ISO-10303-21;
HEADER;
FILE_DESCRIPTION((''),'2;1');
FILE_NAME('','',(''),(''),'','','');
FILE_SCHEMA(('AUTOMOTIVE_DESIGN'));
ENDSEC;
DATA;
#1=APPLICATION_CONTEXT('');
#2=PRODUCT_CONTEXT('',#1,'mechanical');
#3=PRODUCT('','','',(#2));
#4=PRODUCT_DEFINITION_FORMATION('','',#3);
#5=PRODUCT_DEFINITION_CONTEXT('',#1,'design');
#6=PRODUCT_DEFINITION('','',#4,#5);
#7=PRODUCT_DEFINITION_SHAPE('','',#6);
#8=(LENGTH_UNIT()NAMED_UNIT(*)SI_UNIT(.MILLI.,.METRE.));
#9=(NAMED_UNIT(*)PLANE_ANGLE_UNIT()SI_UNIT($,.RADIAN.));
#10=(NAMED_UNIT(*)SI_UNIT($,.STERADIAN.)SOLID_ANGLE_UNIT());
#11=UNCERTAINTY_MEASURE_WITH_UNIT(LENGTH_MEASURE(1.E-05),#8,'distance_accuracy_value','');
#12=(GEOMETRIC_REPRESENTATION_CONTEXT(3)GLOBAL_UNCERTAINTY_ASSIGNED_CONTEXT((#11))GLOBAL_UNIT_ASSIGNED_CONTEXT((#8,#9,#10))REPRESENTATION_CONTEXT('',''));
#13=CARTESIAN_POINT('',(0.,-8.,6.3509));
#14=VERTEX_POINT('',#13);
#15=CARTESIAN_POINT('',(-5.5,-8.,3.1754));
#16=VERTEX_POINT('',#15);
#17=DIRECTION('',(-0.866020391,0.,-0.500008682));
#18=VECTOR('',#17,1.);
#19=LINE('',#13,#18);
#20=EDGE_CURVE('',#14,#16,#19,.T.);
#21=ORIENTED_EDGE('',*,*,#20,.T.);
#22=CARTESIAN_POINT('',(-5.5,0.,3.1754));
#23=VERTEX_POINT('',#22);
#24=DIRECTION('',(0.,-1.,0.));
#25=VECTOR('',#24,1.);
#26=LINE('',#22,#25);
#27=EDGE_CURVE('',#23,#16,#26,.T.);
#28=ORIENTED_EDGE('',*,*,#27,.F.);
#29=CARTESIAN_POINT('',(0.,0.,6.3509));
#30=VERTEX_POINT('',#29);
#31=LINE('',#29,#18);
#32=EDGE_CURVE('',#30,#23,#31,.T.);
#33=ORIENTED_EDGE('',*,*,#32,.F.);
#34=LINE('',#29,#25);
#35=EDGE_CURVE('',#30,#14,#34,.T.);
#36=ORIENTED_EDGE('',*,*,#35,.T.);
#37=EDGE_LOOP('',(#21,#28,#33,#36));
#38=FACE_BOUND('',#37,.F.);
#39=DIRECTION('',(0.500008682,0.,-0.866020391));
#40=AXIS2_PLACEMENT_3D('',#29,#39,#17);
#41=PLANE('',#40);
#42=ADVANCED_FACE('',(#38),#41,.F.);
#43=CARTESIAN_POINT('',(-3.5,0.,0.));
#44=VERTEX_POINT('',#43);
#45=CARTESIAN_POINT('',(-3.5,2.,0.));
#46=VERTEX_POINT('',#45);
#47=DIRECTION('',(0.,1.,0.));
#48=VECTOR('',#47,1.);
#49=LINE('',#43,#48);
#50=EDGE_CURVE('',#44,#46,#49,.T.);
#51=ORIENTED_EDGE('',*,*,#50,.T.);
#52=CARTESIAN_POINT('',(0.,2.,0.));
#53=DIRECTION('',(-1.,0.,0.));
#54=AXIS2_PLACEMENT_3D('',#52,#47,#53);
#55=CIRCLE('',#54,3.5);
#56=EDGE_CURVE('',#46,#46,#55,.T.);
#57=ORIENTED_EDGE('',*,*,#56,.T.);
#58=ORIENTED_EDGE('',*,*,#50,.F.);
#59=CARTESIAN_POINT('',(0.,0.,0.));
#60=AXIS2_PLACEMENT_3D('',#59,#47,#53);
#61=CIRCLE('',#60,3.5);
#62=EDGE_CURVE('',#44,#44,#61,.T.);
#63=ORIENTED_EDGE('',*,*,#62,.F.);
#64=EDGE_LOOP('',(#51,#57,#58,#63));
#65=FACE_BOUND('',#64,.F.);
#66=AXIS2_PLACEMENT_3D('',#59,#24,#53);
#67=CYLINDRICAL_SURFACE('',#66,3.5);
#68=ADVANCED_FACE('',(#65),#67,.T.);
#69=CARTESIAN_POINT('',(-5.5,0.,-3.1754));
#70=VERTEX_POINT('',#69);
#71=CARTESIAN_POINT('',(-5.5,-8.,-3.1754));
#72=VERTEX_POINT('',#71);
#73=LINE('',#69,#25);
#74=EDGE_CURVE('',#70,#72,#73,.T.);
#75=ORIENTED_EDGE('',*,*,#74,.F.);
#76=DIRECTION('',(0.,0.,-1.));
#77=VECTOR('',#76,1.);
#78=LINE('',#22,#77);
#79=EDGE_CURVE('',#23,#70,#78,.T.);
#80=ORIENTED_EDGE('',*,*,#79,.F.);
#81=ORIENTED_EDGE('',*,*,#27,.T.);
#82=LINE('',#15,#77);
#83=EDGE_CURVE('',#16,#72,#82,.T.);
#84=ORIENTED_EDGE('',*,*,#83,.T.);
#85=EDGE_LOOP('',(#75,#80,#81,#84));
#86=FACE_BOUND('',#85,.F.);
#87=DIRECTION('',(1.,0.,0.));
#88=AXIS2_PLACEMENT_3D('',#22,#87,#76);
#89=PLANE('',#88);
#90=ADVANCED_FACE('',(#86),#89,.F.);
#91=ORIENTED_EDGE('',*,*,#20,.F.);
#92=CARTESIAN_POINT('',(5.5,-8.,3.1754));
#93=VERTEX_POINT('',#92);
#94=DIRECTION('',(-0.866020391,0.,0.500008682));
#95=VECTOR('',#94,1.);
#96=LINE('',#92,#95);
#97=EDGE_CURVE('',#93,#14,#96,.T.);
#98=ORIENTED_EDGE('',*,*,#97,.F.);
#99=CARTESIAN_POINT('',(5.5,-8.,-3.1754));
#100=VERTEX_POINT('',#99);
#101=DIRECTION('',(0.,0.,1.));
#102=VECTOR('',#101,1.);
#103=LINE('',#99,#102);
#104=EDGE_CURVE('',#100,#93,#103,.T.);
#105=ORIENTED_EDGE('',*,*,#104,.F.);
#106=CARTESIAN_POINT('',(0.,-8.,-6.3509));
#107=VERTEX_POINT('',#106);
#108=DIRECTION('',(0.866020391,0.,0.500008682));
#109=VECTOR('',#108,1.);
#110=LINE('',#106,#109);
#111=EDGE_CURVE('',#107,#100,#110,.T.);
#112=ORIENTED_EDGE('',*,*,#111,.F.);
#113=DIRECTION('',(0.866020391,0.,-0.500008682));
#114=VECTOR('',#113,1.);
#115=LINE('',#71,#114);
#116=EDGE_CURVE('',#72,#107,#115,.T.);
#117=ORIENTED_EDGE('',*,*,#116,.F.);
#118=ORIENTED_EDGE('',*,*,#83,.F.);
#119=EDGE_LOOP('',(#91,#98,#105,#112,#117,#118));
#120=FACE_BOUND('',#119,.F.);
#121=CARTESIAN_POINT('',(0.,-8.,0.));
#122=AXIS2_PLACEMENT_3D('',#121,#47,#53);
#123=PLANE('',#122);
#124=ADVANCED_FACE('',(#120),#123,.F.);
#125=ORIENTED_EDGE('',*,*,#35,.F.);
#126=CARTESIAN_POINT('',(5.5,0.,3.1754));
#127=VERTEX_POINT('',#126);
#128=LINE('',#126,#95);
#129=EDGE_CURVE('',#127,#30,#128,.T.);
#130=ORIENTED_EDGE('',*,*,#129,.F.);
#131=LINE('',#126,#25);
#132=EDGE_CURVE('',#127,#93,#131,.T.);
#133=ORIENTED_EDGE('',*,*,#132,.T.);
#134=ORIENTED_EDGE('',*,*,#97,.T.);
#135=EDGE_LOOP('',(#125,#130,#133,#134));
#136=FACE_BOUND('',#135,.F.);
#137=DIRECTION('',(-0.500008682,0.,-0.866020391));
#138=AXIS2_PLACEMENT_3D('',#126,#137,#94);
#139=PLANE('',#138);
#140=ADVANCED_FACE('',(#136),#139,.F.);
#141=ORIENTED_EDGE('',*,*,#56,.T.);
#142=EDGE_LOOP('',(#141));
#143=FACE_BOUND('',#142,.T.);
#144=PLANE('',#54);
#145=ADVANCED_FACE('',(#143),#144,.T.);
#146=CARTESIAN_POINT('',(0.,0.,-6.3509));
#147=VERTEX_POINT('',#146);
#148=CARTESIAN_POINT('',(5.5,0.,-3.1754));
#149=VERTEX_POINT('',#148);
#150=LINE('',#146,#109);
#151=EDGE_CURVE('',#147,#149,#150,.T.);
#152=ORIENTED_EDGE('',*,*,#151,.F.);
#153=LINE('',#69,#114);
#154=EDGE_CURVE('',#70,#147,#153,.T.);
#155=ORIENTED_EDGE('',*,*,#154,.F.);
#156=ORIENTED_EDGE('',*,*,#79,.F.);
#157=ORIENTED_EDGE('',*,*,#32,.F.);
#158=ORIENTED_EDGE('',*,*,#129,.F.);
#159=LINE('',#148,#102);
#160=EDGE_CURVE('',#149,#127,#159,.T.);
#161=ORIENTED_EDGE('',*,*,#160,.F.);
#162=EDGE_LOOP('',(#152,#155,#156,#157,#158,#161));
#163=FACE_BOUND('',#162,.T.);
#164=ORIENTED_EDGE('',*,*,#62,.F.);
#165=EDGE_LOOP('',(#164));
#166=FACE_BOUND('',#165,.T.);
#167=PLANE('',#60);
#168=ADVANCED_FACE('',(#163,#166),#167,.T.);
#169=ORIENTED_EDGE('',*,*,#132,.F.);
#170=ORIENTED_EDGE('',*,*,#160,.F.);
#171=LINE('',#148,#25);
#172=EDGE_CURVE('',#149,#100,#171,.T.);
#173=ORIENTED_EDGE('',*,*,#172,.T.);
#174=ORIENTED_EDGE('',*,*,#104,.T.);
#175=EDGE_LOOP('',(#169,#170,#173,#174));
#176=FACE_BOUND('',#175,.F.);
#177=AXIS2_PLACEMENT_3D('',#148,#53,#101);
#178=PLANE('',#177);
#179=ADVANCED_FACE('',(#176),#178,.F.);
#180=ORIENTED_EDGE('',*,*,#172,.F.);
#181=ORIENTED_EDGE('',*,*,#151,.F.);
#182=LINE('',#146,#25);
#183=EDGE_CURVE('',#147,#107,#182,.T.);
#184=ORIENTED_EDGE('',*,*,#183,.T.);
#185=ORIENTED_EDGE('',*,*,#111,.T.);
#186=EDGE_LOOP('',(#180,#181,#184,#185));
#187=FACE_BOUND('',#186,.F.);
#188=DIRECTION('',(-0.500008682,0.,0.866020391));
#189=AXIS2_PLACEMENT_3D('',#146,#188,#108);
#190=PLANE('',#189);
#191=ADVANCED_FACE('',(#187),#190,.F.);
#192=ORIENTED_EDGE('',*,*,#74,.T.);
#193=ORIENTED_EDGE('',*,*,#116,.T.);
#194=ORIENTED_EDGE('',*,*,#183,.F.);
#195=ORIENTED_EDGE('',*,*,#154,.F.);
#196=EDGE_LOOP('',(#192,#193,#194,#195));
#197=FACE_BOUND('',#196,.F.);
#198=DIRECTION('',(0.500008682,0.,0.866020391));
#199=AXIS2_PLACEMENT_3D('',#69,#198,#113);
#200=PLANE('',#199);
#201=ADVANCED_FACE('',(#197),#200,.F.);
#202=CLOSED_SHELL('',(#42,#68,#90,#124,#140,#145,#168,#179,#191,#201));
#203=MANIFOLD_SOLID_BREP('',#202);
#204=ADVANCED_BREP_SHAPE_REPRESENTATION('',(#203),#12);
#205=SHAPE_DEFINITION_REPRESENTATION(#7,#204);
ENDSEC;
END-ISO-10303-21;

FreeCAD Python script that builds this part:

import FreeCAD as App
import Part
import Sketcher
from FreeCAD import Vector
Q = App.Units.Quantity

doc = App.newDocument("Part")
params = doc.addObject("Spreadsheet::Sheet", "Params")
for row, (alias, value) in enumerate([
    ("pad1_length", "8 mm"),
    ("sketch2_diameter", "7 mm"),
    ("pad2_length", "2 mm"),
], start=1):
    params.set(f"A{row}", alias)
    params.set(f"B{row}", "=" + value)
    params.setAlias(f"B{row}", alias)

body = doc.addObject("PartDesign::Body", "Body")

sketch1 = doc.addObject("Sketcher::SketchObject", "Sketch")
body.addObject(sketch1)
sketch1.AttachmentSupport = (doc.XZ_Plane, [""])
sketch1.MapMode = "FlatFace"
sketch1.addGeometry([
    Part.LineSegment(Vector(0, -6, 0), Vector(-6, -3, 0)),
    Part.LineSegment(Vector(-6, -3, 0), Vector(-6, 3, 0)),
    Part.LineSegment(Vector(-6, 3, 0), Vector(0, 6, 0)),
    Part.LineSegment(Vector(0, 6, 0), Vector(6, 3, 0)),
    Part.LineSegment(Vector(6, 3, 0), Vector(6, -3, 0)),
    Part.LineSegment(Vector(6, -3, 0), Vector(0, -6, 0)),
], False)
sketch1.addConstraint([
    Sketcher.Constraint("Coincident", 0, 2, 1, 1),
    Sketcher.Constraint("Coincident", 1, 2, 2, 1),
    Sketcher.Constraint("Coincident", 2, 2, 3, 1),
    Sketcher.Constraint("Coincident", 3, 2, 4, 1),
    Sketcher.Constraint("Coincident", 4, 2, 5, 1),
    Sketcher.Constraint("Coincident", 5, 2, 0, 1),
    Sketcher.Constraint("Vertical", 1),
    Sketcher.Constraint("Vertical", 4),
    Sketcher.Constraint("Symmetric", 0, 2, 3, 2, -1, 1),
    Sketcher.Constraint("Symmetric", 2, 2, 5, 2, -1, 1),
    Sketcher.Constraint("PointOnObject", 2, 2, -2),
    Sketcher.Constraint("Parallel", 2, 5),
    Sketcher.Constraint("Horizontal", 1, 2, 3, 2),
    Sketcher.Constraint("DistanceX", 1, 2, 3, 2, Q("11 mm")),
    Sketcher.Constraint("Angle", 0, Q("149.9994 deg")),
    Sketcher.Constraint("DistanceY", 1, 1, 1, 2, Q("6.3508 mm")),
])
pad1 = doc.addObject("PartDesign::Pad", "Pad")
body.addObject(pad1)
pad1.Profile = sketch1
pad1.setExpression("Length", "Params.pad1_length")

sketch2 = doc.addObject("Sketcher::SketchObject", "Sketch001")
body.addObject(sketch2)
sketch2.AttachmentSupport = (doc.XZ_Plane, [""])
sketch2.MapMode = "FlatFace"
sketch2.addGeometry(Part.Circle(Vector(0, 0, 0), Vector(0, 0, 1), 3.5), False)
sketch2.addConstraint([
    Sketcher.Constraint("Coincident", 0, 3, -1, 1),
    Sketcher.Constraint("Diameter", 0, Q("7 mm")),
])
sketch2.setExpression("Constraints[1]", "Params.sketch2_diameter")
pad2 = doc.addObject("PartDesign::Pad", "Pad001")
body.addObject(pad2)
pad2.Profile = sketch2
pad2.setExpression("Length", "Params.pad2_length")
pad2.Reversed = True

doc.recompute()
